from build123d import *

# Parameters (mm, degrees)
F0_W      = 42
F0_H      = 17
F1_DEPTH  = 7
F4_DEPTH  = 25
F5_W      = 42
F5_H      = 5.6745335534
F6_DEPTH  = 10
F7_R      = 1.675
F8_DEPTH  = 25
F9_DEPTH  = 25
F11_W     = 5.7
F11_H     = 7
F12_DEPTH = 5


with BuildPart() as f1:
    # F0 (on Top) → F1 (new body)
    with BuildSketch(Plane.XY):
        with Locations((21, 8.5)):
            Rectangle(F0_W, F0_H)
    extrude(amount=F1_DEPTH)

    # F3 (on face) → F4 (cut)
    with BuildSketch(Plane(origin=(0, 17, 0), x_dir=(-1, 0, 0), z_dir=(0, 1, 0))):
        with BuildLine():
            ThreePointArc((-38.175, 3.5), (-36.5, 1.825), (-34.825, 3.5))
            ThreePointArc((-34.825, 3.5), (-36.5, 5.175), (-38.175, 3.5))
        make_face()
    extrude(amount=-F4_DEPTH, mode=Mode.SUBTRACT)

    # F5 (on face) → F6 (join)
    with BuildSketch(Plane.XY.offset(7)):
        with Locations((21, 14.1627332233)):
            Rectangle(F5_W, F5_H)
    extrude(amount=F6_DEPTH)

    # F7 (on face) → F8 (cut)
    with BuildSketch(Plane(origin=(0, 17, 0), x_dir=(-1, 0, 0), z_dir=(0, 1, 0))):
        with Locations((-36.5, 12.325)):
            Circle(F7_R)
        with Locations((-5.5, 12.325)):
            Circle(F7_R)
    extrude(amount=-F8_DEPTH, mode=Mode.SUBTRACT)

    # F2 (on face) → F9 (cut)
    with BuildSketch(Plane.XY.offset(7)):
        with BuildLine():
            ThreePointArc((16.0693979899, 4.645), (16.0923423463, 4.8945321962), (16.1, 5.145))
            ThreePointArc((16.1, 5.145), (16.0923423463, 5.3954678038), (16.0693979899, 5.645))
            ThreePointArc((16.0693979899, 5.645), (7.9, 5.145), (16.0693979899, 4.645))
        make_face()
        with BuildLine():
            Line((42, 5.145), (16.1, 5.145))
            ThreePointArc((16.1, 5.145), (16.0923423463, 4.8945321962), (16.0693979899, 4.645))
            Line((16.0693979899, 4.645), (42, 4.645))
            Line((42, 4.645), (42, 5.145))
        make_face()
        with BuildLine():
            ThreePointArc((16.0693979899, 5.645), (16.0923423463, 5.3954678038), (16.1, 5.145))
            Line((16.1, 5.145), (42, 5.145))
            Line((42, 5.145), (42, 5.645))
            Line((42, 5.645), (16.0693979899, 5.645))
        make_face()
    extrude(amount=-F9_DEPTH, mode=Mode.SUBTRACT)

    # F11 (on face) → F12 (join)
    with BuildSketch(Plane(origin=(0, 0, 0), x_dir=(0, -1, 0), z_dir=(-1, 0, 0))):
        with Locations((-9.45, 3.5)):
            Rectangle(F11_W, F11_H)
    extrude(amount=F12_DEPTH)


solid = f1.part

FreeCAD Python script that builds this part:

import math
import FreeCAD as App
import Part
import Sketcher

V = App.Vector
Q = App.Units.Quantity


def add_polygon(sketch, points):
    """Adds a closed chain of lines whose ends are joined by coincident constraints."""
    first, n = sketch.GeometryCount, len(points)
    for a, b in zip(points, points[1:] + points[:1]):
        sketch.addGeometry(Part.LineSegment(App.Vector(*a, 0), App.Vector(*b, 0)), False)
    for i in range(n):
        sketch.addConstraint(Sketcher.Constraint("Coincident", first + i, 2, first + (i + 1) % n, 1))

doc = App.newDocument("Part")
body = doc.addObject("PartDesign::Body", "Body")

sketch1 = body.newObject("Sketcher::SketchObject", "Sketch")
sketch1.AttachmentSupport = (doc.getObject("XY_Plane"), [""])
sketch1.MapMode = "FlatFace"
add_polygon(sketch1, [(0, 17), (0, 0), (42, 0), (42, 17)])
sketch1.addConstraint(Sketcher.Constraint("Vertical", 0))
sketch1.addConstraint(Sketcher.Constraint("Horizontal", 1))
sketch1.addConstraint(Sketcher.Constraint("Vertical", 2))
sketch1.addConstraint(Sketcher.Constraint("Horizontal", 3))
sketch1.addConstraint(Sketcher.Constraint("Coincident", 0, 2, -1, 1))
sketch1.addConstraint(Sketcher.Constraint("DistanceX", 1, 1, 1, 2, Q("42 mm")))
sketch1.addConstraint(Sketcher.Constraint("DistanceY", 0, 2, 0, 1, Q("17 mm")))
pad1 = body.newObject("PartDesign::Pad", "Pad")
pad1.Profile = sketch1
pad1.Length = 7

sketch2 = body.newObject("Sketcher::SketchObject", "Sketch001")
sketch2.AttachmentSupport = (doc.getObject("XZ_Plane"), [""])
sketch2.MapMode = "FlatFace"
sketch2.AttachmentOffset = App.Placement(V(0, 0, -17), App.Rotation())
sketch2.addGeometry(Part.Circle(V(36.5, 3.5, 0), V(0, 0, 1), 1.675), False)
sketch2.addConstraint(Sketcher.Constraint("Diameter", 0, Q("3.35 mm")))
sketch2.addConstraint(Sketcher.Constraint("DistanceX", -1, 1, 0, 3, Q("36.5 mm")))
sketch2.addConstraint(Sketcher.Constraint("DistanceY", -1, 1, 0, 3, Q("3.5 mm")))
pocket1 = body.newObject("PartDesign::Pocket", "Pocket")
pocket1.Profile = sketch2
pocket1.Length = 25
pocket1.Reversed = True

sketch3 = body.newObject("Sketcher::SketchObject", "Sketch002")
sketch3.AttachmentSupport = (doc.getObject("XY_Plane"), [""])
sketch3.MapMode = "FlatFace"
sketch3.AttachmentOffset = App.Placement(V(0, 0, 7), App.Rotation())
add_polygon(sketch3, [(0, 17), (0, 11.325466), (42, 11.325466), (42, 17)])
sketch3.addConstraint(Sketcher.Constraint("Vertical", 0))
sketch3.addConstraint(Sketcher.Constraint("Horizontal", 1))
sketch3.addConstraint(Sketcher.Constraint("Vertical", 2))
sketch3.addConstraint(Sketcher.Constraint("Horizontal", 3))
sketch3.addConstraint(Sketcher.Constraint("PointOnObject", 0, 2, -2))
sketch3.addConstraint(Sketcher.Constraint("DistanceX", 1, 1, 1, 2, Q("42 mm")))
sketch3.addConstraint(Sketcher.Constraint("DistanceY", -1, 1, 2, 2, Q("17 mm")))
sketch3.addConstraint(Sketcher.Constraint("DistanceY", 0, 2, 0, 1, Q("5.674534 mm")))
pad2 = body.newObject("PartDesign::Pad", "Pad001")
pad2.Profile = sketch3
pad2.Length = 10

sketch4 = body.newObject("Sketcher::SketchObject", "Sketch003")
sketch4.AttachmentSupport = (doc.getObject("XZ_Plane"), [""])
sketch4.MapMode = "FlatFace"
sketch4.AttachmentOffset = App.Placement(V(0, 0, -17), App.Rotation())
sketch4.addGeometry(Part.Circle(V(36.5, 12.325, 0), V(0, 0, 1), 1.675), False)
sketch4.addGeometry(Part.Circle(V(5.5, 12.325, 0), V(0, 0, 1), 1.675), False)
sketch4.addConstraint(Sketcher.Constraint("Equal", 0, 1))
sketch4.addConstraint(Sketcher.Constraint("Horizontal", 0, 3, 1, 3))
sketch4.addConstraint(Sketcher.Constraint("Diameter", 0, Q("3.35 mm")))
sketch4.addConstraint(Sketcher.Constraint("DistanceX", 1, 3, 0, 3, Q("31 mm")))
sketch4.addConstraint(Sketcher.Constraint("DistanceX", -1, 1, 0, 3, Q("36.5 mm")))
sketch4.addConstraint(Sketcher.Constraint("DistanceY", -1, 1, 0, 3, Q("12.325 mm")))
pocket2 = body.newObject("PartDesign::Pocket", "Pocket001")
pocket2.Profile = sketch4
pocket2.Length = 25
pocket2.Reversed = True

sketch5 = body.newObject("Sketcher::SketchObject", "Sketch004")
sketch5.AttachmentSupport = (doc.getObject("XY_Plane"), [""])
sketch5.MapMode = "FlatFace"
sketch5.AttachmentOffset = App.Placement(V(0, 0, 7), App.Rotation())
sketch5.addGeometry(Part.ArcOfCircle(Part.Circle(V(12, 5.145, 0), V(0, 0, 1), 4.1), math.radians(7.004726), math.radians(352.995274)), False)
sketch5.addGeometry(Part.LineSegment(V(16.069398, 4.645, 0), V(42, 4.645, 0)), False)
sketch5.addGeometry(Part.LineSegment(V(42, 4.645, 0), V(42, 5.645, 0)), False)
sketch5.addGeometry(Part.LineSegment(V(42, 5.645, 0), V(16.069398, 5.645, 0)), False)
sketch5.addConstraint(Sketcher.Constraint("Coincident", 0, 2, 1, 1))
sketch5.addConstraint(Sketcher.Constraint("Coincident", 1, 2, 2, 1))
sketch5.addConstraint(Sketcher.Constraint("Coincident", 2, 2, 3, 1))
sketch5.addConstraint(Sketcher.Constraint("Coincident", 3, 2, 0, 1))
sketch5.addConstraint(Sketcher.Constraint("Horizontal", 1))
sketch5.addConstraint(Sketcher.Constraint("Vertical", 2))
sketch5.addConstraint(Sketcher.Constraint("Horizontal", 3))
sketch5.addConstraint(Sketcher.Constraint("Vertical", 0, 2, 3, 2))
sketch5.addConstraint(Sketcher.Constraint("Radius", 0, Q("4.1 mm")))
sketch5.addConstraint(Sketcher.Constraint("DistanceY", 2, 1, 2, 2, Q("1 mm")))
sketch5.addConstraint(Sketcher.Constraint("DistanceX", -1, 1, 0, 3, Q("12 mm")))
sketch5.addConstraint(Sketcher.Constraint("DistanceX", -1, 1, 1, 2, Q("42 mm")))
sketch5.addConstraint(Sketcher.Constraint("DistanceY", -1, 1, 0, 3, Q("5.145 mm")))
pocket3 = body.newObject("PartDesign::Pocket", "Pocket002")
pocket3.Profile = sketch5
pocket3.Length = 25

sketch6 = body.newObject("Sketcher::SketchObject", "Sketch005")
sketch6.AttachmentSupport = (doc.getObject("YZ_Plane"), [""])
sketch6.MapMode = "FlatFace"
add_polygon(sketch6, [(12.3, 7), (12.3, 0), (6.6, 0), (6.6, 7)])
sketch6.addConstraint(Sketcher.Constraint("Vertical", 0))
sketch6.addConstraint(Sketcher.Constraint("Horizontal", 1))
sketch6.addConstraint(Sketcher.Constraint("Vertical", 2))
sketch6.addConstraint(Sketcher.Constraint("Horizontal", 3))
sketch6.addConstraint(Sketcher.Constraint("PointOnObject", 0, 2, -1))
sketch6.addConstraint(Sketcher.Constraint("DistanceY", 0, 2, 0, 1, Q("7 mm")))
sketch6.addConstraint(Sketcher.Constraint("DistanceX", 1, 2, 1, 1, Q("5.7 mm")))
sketch6.addConstraint(Sketcher.Constraint("DistanceX", -1, 1, 0, 2, Q("12.3 mm")))
pad3 = body.newObject("PartDesign::Pad", "Pad002")
pad3.Profile = sketch6
pad3.Length = 5
pad3.Reversed = True

doc.recompute()
